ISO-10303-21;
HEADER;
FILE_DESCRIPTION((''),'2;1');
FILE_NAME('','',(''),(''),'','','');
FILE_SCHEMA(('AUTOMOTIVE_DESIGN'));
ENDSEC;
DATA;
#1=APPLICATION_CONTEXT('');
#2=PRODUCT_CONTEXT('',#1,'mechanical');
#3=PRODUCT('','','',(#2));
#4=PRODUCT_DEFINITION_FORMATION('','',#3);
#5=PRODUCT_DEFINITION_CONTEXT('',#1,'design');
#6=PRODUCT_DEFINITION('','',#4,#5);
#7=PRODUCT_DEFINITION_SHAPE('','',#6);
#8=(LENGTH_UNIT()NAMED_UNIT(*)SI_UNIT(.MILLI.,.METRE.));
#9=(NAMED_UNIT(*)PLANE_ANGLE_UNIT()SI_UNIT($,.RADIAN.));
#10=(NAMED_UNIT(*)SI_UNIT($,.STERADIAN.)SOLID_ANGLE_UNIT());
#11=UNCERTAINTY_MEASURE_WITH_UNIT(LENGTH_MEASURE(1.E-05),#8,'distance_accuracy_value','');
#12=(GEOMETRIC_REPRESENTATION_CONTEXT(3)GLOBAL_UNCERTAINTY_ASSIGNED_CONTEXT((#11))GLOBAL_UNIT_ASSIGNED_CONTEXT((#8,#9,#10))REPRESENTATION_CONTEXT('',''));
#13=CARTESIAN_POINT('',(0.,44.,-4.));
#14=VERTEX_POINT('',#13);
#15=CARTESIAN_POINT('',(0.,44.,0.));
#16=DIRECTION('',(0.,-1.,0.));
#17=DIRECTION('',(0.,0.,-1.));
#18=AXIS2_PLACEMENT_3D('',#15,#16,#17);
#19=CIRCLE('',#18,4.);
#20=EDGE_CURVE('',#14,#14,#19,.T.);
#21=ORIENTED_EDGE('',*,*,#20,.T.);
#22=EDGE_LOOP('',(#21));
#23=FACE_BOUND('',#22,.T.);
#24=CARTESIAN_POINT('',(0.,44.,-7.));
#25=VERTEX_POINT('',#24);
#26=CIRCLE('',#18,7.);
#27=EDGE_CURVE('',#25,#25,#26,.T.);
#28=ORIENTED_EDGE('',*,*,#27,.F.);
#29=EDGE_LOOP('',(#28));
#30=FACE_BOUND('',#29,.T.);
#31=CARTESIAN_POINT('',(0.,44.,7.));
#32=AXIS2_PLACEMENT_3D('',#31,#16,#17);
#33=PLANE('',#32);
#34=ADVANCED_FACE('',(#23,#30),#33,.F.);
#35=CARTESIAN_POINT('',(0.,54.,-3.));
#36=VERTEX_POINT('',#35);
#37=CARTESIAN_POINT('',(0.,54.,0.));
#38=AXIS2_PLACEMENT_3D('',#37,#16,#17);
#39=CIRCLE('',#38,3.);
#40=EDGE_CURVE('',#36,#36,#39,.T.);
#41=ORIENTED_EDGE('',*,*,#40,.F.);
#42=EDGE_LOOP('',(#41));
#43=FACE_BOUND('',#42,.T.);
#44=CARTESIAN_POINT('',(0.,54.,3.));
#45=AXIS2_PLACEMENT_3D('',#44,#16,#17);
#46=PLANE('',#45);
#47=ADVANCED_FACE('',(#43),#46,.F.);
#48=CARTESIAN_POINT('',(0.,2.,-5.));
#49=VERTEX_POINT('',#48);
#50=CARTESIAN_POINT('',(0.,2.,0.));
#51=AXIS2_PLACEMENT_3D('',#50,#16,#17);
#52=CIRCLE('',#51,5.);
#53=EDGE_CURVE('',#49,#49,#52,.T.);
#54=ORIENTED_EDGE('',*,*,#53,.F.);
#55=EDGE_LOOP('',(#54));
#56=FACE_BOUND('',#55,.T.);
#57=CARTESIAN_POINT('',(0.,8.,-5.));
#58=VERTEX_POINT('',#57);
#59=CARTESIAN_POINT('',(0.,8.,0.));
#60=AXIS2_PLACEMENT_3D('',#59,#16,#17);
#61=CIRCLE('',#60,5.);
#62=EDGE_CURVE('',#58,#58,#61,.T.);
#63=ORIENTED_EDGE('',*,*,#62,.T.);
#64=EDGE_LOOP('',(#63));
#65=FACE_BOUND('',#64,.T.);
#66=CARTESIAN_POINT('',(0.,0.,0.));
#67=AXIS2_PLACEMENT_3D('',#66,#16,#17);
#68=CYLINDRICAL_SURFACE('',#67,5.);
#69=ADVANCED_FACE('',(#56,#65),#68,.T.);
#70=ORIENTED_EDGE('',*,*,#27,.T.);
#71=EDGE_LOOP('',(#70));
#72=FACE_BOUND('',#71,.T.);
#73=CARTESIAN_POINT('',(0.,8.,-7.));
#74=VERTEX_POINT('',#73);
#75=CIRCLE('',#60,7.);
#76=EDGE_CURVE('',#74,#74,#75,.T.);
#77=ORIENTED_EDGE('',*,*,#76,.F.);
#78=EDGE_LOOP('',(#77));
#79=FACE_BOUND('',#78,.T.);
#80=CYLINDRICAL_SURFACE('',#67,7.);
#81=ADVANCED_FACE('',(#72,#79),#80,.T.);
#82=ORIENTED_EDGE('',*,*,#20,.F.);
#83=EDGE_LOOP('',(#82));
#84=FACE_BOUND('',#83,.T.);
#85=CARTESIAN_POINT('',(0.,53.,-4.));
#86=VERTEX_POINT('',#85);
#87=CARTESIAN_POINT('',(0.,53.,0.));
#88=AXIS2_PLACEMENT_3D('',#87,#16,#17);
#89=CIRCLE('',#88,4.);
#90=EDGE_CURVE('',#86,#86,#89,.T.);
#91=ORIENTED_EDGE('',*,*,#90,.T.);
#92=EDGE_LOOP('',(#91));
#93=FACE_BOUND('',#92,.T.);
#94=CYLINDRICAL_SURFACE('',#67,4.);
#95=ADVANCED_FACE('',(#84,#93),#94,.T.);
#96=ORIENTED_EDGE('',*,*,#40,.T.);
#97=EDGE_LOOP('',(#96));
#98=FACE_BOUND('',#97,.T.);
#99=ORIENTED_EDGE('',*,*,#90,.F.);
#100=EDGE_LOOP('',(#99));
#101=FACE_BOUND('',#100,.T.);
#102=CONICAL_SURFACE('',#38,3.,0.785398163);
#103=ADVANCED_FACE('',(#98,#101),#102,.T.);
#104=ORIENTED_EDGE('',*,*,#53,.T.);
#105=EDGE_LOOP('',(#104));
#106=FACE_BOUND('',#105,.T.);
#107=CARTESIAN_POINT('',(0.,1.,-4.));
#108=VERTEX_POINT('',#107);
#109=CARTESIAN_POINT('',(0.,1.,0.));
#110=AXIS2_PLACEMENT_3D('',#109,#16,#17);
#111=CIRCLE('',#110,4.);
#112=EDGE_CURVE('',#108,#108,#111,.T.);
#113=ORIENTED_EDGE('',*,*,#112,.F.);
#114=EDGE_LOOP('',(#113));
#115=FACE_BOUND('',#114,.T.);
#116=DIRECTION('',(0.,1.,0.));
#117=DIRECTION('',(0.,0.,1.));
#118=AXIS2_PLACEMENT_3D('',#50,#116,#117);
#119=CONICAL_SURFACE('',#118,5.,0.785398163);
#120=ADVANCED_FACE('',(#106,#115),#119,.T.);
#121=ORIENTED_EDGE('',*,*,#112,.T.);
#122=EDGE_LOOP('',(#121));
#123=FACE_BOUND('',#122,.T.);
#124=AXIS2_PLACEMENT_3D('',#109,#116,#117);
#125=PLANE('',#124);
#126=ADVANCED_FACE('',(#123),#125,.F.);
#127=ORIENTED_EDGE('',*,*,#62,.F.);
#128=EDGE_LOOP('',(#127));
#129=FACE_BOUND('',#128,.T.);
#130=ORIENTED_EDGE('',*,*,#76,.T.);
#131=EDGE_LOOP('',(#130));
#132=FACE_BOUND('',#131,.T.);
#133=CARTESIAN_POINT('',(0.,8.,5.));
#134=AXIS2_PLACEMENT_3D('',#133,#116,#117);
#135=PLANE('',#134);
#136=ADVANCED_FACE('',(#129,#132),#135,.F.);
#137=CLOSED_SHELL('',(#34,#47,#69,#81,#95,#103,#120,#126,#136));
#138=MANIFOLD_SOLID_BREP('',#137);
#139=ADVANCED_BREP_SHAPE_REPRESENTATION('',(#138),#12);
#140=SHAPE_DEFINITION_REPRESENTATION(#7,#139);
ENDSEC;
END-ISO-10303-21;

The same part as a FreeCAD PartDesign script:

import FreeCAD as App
import Part
import Sketcher

V = App.Vector
Q = App.Units.Quantity

doc = App.newDocument("Part")
body = doc.addObject("PartDesign::Body", "Body")

sketch1 = body.newObject("Sketcher::SketchObject", "Sketch")
sketch1.AttachmentSupport = (doc.getObject("YZ_Plane"), [""])
sketch1.MapMode = "FlatFace"
sketch1.addGeometry(Part.LineSegment(V(1, 4, 0), V(1, 0, 0)), False)
sketch1.addGeometry(Part.LineSegment(V(1, 0, 0), V(54, 0, 0)), False)
sketch1.addGeometry(Part.LineSegment(V(54, 0, 0), V(54, 3, 0)), False)
sketch1.addGeometry(Part.LineSegment(V(54, 3, 0), V(53, 4, 0)), False)
sketch1.addGeometry(Part.LineSegment(V(53, 4, 0), V(44, 4, 0)), False)
sketch1.addGeometry(Part.LineSegment(V(44, 4, 0), V(44, 7, 0)), False)
sketch1.addGeometry(Part.LineSegment(V(44, 7, 0), V(8, 7, 0)), False)
sketch1.addGeometry(Part.LineSegment(V(8, 7, 0), V(8, 5, 0)), False)
sketch1.addGeometry(Part.LineSegment(V(8, 5, 0), V(2, 5, 0)), False)
sketch1.addGeometry(Part.LineSegment(V(2, 5, 0), V(1, 4, 0)), False)
sketch1.addConstraint(Sketcher.Constraint("Coincident", 0, 2, 1, 1))
sketch1.addConstraint(Sketcher.Constraint("Coincident", 1, 2, 2, 1))
sketch1.addConstraint(Sketcher.Constraint("Coincident", 2, 2, 3, 1))
sketch1.addConstraint(Sketcher.Constraint("Coincident", 3, 2, 4, 1))
sketch1.addConstraint(Sketcher.Constraint("Coincident", 4, 2, 5, 1))
sketch1.addConstraint(Sketcher.Constraint("Coincident", 5, 2, 6, 1))
sketch1.addConstraint(Sketcher.Constraint("Coincident", 6, 2, 7, 1))
sketch1.addConstraint(Sketcher.Constraint("Coincident", 7, 2, 8, 1))
sketch1.addConstraint(Sketcher.Constraint("Coincident", 8, 2, 9, 1))
sketch1.addConstraint(Sketcher.Constraint("Coincident", 9, 2, 0, 1))
sketch1.addConstraint(Sketcher.Constraint("Vertical", 0))
sketch1.addConstraint(Sketcher.Constraint("Horizontal", 1))
sketch1.addConstraint(Sketcher.Constraint("Vertical", 2))
sketch1.addConstraint(Sketcher.Constraint("Horizontal", 4))
sketch1.addConstraint(Sketcher.Constraint("Vertical", 5))
sketch1.addConstraint(Sketcher.Constraint("Horizontal", 6))
sketch1.addConstraint(Sketcher.Constraint("Vertical", 7))
sketch1.addConstraint(Sketcher.Constraint("Horizontal", 8))
sketch1.addConstraint(Sketcher.Constraint("PointOnObject", 0, 2, -1))
sketch1.addConstraint(Sketcher.Constraint("Perpendicular", 3, 9))
sketch1.addConstraint(Sketcher.Constraint("Horizontal", 4, 2, 9, 2))
sketch1.addConstraint(Sketcher.Constraint("Equal", 2, 5))
sketch1.addConstraint(Sketcher.Constraint("Equal", 3, 9))
sketch1.addConstraint(Sketcher.Constraint("DistanceX", 1, 1, 1, 2, Q("53 mm")))
sketch1.addConstraint(Sketcher.Constraint("DistanceX", 4, 2, 4, 1, Q("9 mm")))
sketch1.addConstraint(Sketcher.Constraint("DistanceX", 6, 2, 6, 1, Q("36 mm")))
sketch1.addConstraint(Sketcher.Constraint("DistanceX", 8, 2, 8, 1, Q("6 mm")))
sketch1.addConstraint(Sketcher.Constraint("DistanceY", 0, 2, 0, 1, Q("4 mm")))
sketch1.addConstraint(Sketcher.Constraint("DistanceY", 2, 1, 2, 2, Q("3 mm")))
sketch1.addConstraint(Sketcher.Constraint("DistanceX", -1, 1, 0, 2, Q("1 mm")))
revolution = body.newObject("PartDesign::Revolution", "Revolution")
revolution.Profile = sketch1
revolution.ReferenceAxis = (sketch1, ["H_Axis"])
revolution.Angle = 360

doc.recompute()
